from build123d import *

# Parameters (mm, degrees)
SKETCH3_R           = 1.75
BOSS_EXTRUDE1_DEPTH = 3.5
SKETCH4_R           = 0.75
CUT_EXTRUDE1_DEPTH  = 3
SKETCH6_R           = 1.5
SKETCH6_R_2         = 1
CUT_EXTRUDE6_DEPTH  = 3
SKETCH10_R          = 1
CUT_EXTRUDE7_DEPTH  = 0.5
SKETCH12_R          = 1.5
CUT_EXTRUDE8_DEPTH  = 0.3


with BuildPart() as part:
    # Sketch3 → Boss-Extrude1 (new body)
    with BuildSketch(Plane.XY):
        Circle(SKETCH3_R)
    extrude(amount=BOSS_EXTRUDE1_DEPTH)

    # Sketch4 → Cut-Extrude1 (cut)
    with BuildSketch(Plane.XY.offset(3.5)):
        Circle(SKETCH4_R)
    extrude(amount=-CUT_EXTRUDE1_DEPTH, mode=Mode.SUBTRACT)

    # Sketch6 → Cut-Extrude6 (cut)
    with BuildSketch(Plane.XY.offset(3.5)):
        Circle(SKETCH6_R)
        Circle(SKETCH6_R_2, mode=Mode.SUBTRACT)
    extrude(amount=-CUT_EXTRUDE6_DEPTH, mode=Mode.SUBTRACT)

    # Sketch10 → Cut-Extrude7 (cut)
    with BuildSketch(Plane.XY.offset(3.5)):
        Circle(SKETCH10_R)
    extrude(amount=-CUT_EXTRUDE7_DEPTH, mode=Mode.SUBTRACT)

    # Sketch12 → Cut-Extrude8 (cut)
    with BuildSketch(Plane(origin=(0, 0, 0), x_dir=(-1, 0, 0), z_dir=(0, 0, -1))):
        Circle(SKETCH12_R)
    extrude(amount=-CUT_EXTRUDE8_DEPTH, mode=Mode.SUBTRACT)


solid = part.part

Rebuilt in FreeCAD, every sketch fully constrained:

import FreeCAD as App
import Part
import Sketcher

V = App.Vector
Q = App.Units.Quantity

doc = App.newDocument("Part")
params = doc.addObject("Spreadsheet::Sheet", "Params")
for row, (alias, value) in enumerate([
    ("sketch1_diameter", "3.5 mm"),
    ("pad1_length", "3.5 mm"),
    ("sketch2_diameter", "1.5 mm"),
    ("pocket1_length", "3 mm"),
    ("sketch3_diameter", "3 mm"),
    ("sketch3_diameter2", "2 mm"),
    ("pocket2_length", "3 mm"),
    ("sketch4_diameter", "2 mm"),
    ("pocket3_length", "0.5 mm"),
    ("sketch5_diameter", "3 mm"),
    ("pocket4_length", "0.3 mm"),
], start=1):
    params.set(f"A{row}", alias)
    params.set(f"B{row}", "=" + value)
    params.setAlias(f"B{row}", alias)

body = doc.addObject("PartDesign::Body", "Body")

# Sketch on XY plane
sketch1 = doc.addObject("Sketcher::SketchObject", "Sketch")
body.addObject(sketch1)
sketch1.AttachmentSupport = (doc.XY_Plane, [""])
sketch1.MapMode = "FlatFace"
sketch1.addGeometry(Part.Circle(V(0, 0, 0), V(0, 0, 1), 1.8), False)
sketch1.addConstraint([
    Sketcher.Constraint("Coincident", 0, 3, -1, 1),
    Sketcher.Constraint("Diameter", 0, Q("3.5 mm")),
])
sketch1.setExpression("Constraints[1]", "Params.sketch1_diameter")
pad1 = doc.addObject("PartDesign::Pad", "Pad")
body.addObject(pad1)
pad1.Profile = sketch1
pad1.setExpression("Length", "Params.pad1_length")

# Sketch on XY plane
sketch2 = doc.addObject("Sketcher::SketchObject", "Sketch001")
body.addObject(sketch2)
sketch2.AttachmentSupport = (doc.XY_Plane, [""])
sketch2.MapMode = "FlatFace"
sketch2.AttachmentOffset = App.Placement(V(0, 0, 3.5), App.Rotation())
sketch2.addGeometry(Part.Circle(V(0, 0, 0), V(0, 0, 1), 0.8), False)
sketch2.addConstraint([
    Sketcher.Constraint("Coincident", 0, 3, -1, 1),
    Sketcher.Constraint("Diameter", 0, Q("1.5 mm")),
])
sketch2.setExpression("Constraints[1]", "Params.sketch2_diameter")
pocket1 = doc.addObject("PartDesign::Pocket", "Pocket")
body.addObject(pocket1)
pocket1.Profile = sketch2
pocket1.setExpression("Length", "Params.pocket1_length")

# Sketch on XY plane
sketch3 = doc.addObject("Sketcher::SketchObject", "Sketch002")
body.addObject(sketch3)
sketch3.AttachmentSupport = (doc.XY_Plane, [""])
sketch3.MapMode = "FlatFace"
sketch3.AttachmentOffset = App.Placement(V(0, 0, 3.5), App.Rotation())
sketch3.addGeometry([
    Part.Circle(V(0, 0, 0), V(0, 0, 1), 1.5),
    Part.Circle(V(0, 0, 0), V(0, 0, 1), 1),
], False)
sketch3.addConstraint([
    Sketcher.Constraint("Coincident", 0, 3, -1, 1),
    Sketcher.Constraint("Coincident", 1, 3, -1, 1),
    Sketcher.Constraint("Diameter", 0, Q("3 mm")),
    Sketcher.Constraint("Diameter", 1, Q("2 mm")),
])
sketch3.setExpression("Constraints[2]", "Params.sketch3_diameter")
sketch3.setExpression("Constraints[3]", "Params.sketch3_diameter2")
pocket2 = doc.addObject("PartDesign::Pocket", "Pocket001")
body.addObject(pocket2)
pocket2.Profile = sketch3
pocket2.setExpression("Length", "Params.pocket2_length")

# Sketch on XY plane
sketch4 = doc.addObject("Sketcher::SketchObject", "Sketch003")
body.addObject(sketch4)
sketch4.AttachmentSupport = (doc.XY_Plane, [""])
sketch4.MapMode = "FlatFace"
sketch4.AttachmentOffset = App.Placement(V(0, 0, 3.5), App.Rotation())
sketch4.addGeometry(Part.Circle(V(0, 0, 0), V(0, 0, 1), 1), False)
sketch4.addConstraint([
    Sketcher.Constraint("Coincident", 0, 3, -1, 1),
    Sketcher.Constraint("Diameter", 0, Q("2 mm")),
])
sketch4.setExpression("Constraints[1]", "Params.sketch4_diameter")
pocket3 = doc.addObject("PartDesign::Pocket", "Pocket002")
body.addObject(pocket3)
pocket3.Profile = sketch4
pocket3.setExpression("Length", "Params.pocket3_length")

# Sketch on XY plane
sketch5 = doc.addObject("Sketcher::SketchObject", "Sketch004")
body.addObject(sketch5)
sketch5.AttachmentSupport = (doc.XY_Plane, [""])
sketch5.MapMode = "FlatFace"
sketch5.addGeometry(Part.Circle(V(0, 0, 0), V(0, 0, 1), 1.5), False)
sketch5.addConstraint([
    Sketcher.Constraint("Coincident", 0, 3, -1, 1),
    Sketcher.Constraint("Diameter", 0, Q("3 mm")),
])
sketch5.setExpression("Constraints[1]", "Params.sketch5_diameter")
pocket4 = doc.addObject("PartDesign::Pocket", "Pocket003")
body.addObject(pocket4)
pocket4.Profile = sketch5
pocket4.setExpression("Length", "Params.pocket4_length")
pocket4.Reversed = True

doc.recompute()
